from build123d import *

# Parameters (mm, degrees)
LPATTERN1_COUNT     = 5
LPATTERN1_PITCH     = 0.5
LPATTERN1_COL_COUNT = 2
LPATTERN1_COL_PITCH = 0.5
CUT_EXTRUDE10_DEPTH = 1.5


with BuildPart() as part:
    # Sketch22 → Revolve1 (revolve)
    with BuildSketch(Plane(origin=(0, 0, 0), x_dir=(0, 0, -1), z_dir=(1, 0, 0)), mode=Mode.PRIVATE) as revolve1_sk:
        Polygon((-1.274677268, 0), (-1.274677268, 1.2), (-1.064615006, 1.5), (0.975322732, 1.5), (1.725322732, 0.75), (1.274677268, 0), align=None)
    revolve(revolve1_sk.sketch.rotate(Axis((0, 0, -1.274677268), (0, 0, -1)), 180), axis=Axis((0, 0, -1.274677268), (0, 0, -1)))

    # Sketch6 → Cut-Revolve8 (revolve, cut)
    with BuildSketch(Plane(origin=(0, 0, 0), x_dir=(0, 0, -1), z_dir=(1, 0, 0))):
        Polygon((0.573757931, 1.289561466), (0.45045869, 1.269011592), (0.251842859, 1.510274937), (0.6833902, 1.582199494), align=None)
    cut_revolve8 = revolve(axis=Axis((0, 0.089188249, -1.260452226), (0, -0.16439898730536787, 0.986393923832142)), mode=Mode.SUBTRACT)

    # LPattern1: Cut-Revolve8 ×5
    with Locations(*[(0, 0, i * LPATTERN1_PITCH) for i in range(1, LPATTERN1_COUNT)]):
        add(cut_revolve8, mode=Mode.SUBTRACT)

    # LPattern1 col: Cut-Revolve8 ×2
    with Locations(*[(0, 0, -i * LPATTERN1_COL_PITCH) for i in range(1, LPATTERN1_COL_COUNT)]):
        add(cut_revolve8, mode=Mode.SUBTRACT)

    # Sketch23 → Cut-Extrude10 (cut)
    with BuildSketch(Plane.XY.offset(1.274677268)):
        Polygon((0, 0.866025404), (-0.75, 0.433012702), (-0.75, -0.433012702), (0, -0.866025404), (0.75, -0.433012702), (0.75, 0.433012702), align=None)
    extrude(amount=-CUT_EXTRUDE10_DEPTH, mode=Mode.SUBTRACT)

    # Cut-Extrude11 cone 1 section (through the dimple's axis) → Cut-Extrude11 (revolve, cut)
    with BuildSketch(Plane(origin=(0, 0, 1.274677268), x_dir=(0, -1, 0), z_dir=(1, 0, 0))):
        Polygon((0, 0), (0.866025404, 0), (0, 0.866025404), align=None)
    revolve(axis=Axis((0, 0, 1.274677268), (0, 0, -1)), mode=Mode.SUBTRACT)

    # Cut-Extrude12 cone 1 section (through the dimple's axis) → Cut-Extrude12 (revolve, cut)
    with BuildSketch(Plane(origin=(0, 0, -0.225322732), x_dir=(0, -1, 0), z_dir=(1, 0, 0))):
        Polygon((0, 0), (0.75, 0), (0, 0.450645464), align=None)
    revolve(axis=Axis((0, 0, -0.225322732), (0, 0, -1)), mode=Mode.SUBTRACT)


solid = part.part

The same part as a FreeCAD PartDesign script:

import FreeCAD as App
import Part
import Sketcher

V = App.Vector
Q = App.Units.Quantity


def add_polygon(sketch, points):
    """Adds a closed chain of lines whose ends are joined by coincident constraints."""
    first, n = sketch.GeometryCount, len(points)
    for a, b in zip(points, points[1:] + points[:1]):
        sketch.addGeometry(Part.LineSegment(App.Vector(*a, 0), App.Vector(*b, 0)), False)
    for i in range(n):
        sketch.addConstraint(Sketcher.Constraint("Coincident", first + i, 2, first + (i + 1) % n, 1))

doc = App.newDocument("Part")
body = doc.addObject("PartDesign::Body", "Body")

# Sketch on YZ plane
sketch1 = body.newObject("Sketcher::SketchObject", "Sketch")
sketch1.AttachmentSupport = (doc.getObject("YZ_Plane"), [""])
sketch1.MapMode = "FlatFace"
add_polygon(sketch1, [(1.2, 1.27), (0, 1.27), (0, -1.27), (0.75, -1.73), (1.5, -0.98), (1.5, 1.06)])  # lines 0-5
sketch1.addConstraint([
    Sketcher.Constraint("Horizontal", 0),
    Sketcher.Constraint("Vertical", 1),
    Sketcher.Constraint("Vertical", 4),
    Sketcher.Constraint("Symmetric", 0, 2, 1, 2, -1, 1),
    Sketcher.Constraint("Angle", 2, Q("-31 deg")),
    Sketcher.Constraint("Angle", 3, Q("45 deg")),
    Sketcher.Constraint("Angle", 5, Q("145 deg")),
    Sketcher.Constraint("DistanceX", 0, 2, 0, 1, 1.2),
    Sketcher.Constraint("DistanceY", 2, 2, 0, 2, 3.0),
    Sketcher.Constraint("DistanceX", -1, 1, 3, 2, 1.5),
    Sketcher.Constraint("DistanceX", -1, 1, 2, 2, 0.75),
])
revolution = body.newObject("PartDesign::Revolution", "Revolution")
revolution.Profile = sketch1
revolution.ReferenceAxis = (sketch1, ["V_Axis"])
revolution.Angle = 360

# Sketch on YZ plane
sketch2 = body.newObject("Sketcher::SketchObject", "Sketch001")
sketch2.AttachmentSupport = (doc.getObject("YZ_Plane"), [""])
sketch2.MapMode = "FlatFace"
add_polygon(sketch2, [(1.27, -0.45), (1.29, -0.57), (1.58, -0.68), (1.51, -0.25)])  # lines 0-3
sketch2.addGeometry(Part.LineSegment(V(0.04, -0.94, 0), V(-0.04, -0.51, 0)), True)  # axis
sketch2.addConstraint([
    Sketcher.Constraint("Parallel", 0, 2),
    Sketcher.Constraint("Parallel", 2, 4),
    Sketcher.Constraint("Equal", 1, 3),
    Sketcher.Constraint("Equal", 2, 4),
    Sketcher.Constraint("Distance", 0, 0.125),
    Sketcher.Constraint("Distance", 1, 0.3125),
    Sketcher.Constraint("Distance", 2, 0.4375),
    Sketcher.Constraint("DistanceX", -1, 1, 1, 2, 1.582199),
    Sketcher.Constraint("DistanceY", 0, 2, 3, 2, 0.123299),
    Sketcher.Constraint("DistanceX", 4, 1, 0, 2, 1.253599),
    Sketcher.Constraint("DistanceY", 1, 2, -1, 1, 0.68339),
    Sketcher.Constraint("DistanceY", 4, 2, -1, 1, 0.509549),
])
groove = body.newObject("PartDesign::Groove", "Groove")
groove.Profile = sketch2
groove.ReferenceAxis = (sketch2, ["Axis0"])
groove.Angle = 360
doc.recompute()

linearpattern = body.newObject("PartDesign::LinearPattern", "LinearPattern")
linearpattern.Originals = [groove]
linearpattern.Direction = (doc.getObject("Z_Axis"), [""])
linearpattern.Mode = "offset"
linearpattern.Offset = 0.5
linearpattern.Occurrences = 5
body.Tip = linearpattern
doc.recompute()

linearpattern2 = body.newObject("PartDesign::LinearPattern", "LinearPattern001")
linearpattern2.Originals = [groove]
linearpattern2.Direction = (doc.getObject("Z_Axis"), [""])
linearpattern2.Mode = "offset"
linearpattern2.Offset = 0.5
linearpattern2.Occurrences = 2
linearpattern2.Reversed = True
body.Tip = linearpattern2

# Sketch on XY plane
sketch3 = body.newObject("Sketcher::SketchObject", "Sketch002")
sketch3.AttachmentSupport = (doc.getObject("XY_Plane"), [""])
sketch3.MapMode = "FlatFace"
sketch3.AttachmentOffset = App.Placement(V(0, 0, 1.274677), App.Rotation())
add_polygon(sketch3, [(0, 0.9), (-0.8, 0.4), (-0.8, -0.4), (0, -0.9), (0.8, -0.4), (0.8, 0.4)])  # lines 0-5
sketch3.addConstraint([
    Sketcher.Constraint("Vertical", 1),
    Sketcher.Constraint("Vertical", 4),
    Sketcher.Constraint("Symmetric", 0, 2, 3, 2, -1, 1),
    Sketcher.Constraint("Symmetric", 2, 2, 5, 2, -1, 1),
    Sketcher.Constraint("PointOnObject", 2, 2, -2),
    Sketcher.Constraint("Parallel", 2, 5),
    Sketcher.Constraint("Horizontal", 1, 2, 3, 2),
    Sketcher.Constraint("Angle", 0, Q("-150 deg")),
    Sketcher.Constraint("DistanceX", 1, 2, 3, 2, 1.5),
    Sketcher.Constraint("DistanceY", 1, 2, 1, 1, 0.866025),
])
pocket1 = body.newObject("PartDesign::Pocket", "Pocket")
pocket1.Profile = sketch3
pocket1.Length = 1.5

# Sketch on YZ plane
sketch4 = body.newObject("Sketcher::SketchObject", "Sketch003")
sketch4.AttachmentSupport = (doc.getObject("YZ_Plane"), [""])
sketch4.MapMode = "FlatFace"
add_polygon(sketch4, [(0, 1.3), (-0.9, 1.3), (0, 0.4)])  # lines 0-2
sketch4.addConstraint([
    Sketcher.Constraint("Horizontal", 0),
    Sketcher.Constraint("Vertical", 2),
    Sketcher.Constraint("PointOnObject", 1, 2, -2),
    Sketcher.Constraint("Equal", 0, 2),
    Sketcher.Constraint("DistanceX", 0, 2, 0, 1, 0.866025),
    Sketcher.Constraint("DistanceY", -1, 1, 1, 2, 0.408652),
])
groove2 = body.newObject("PartDesign::Groove", "Groove001")
groove2.Profile = sketch4
groove2.ReferenceAxis = (sketch4, ["V_Axis"])
groove2.Angle = 360

# Sketch on YZ plane
sketch5 = body.newObject("Sketcher::SketchObject", "Sketch004")
sketch5.AttachmentSupport = (doc.getObject("YZ_Plane"), [""])
sketch5.MapMode = "FlatFace"
add_polygon(sketch5, [(0, -0.23), (-0.75, -0.23), (0, -0.68)])  # lines 0-2
sketch5.addConstraint([
    Sketcher.Constraint("Horizontal", 0),
    Sketcher.Constraint("Vertical", 2),
    Sketcher.Constraint("PointOnObject", 1, 2, -2),
    Sketcher.Constraint("Angle", 1, Q("-31 deg")),
    Sketcher.Constraint("DistanceX", 0, 2, 0, 1, 0.75),
    Sketcher.Constraint("DistanceY", 1, 2, -1, 1, 0.675968),
])
groove3 = body.newObject("PartDesign::Groove", "Groove002")
groove3.Profile = sketch5
groove3.ReferenceAxis = (sketch5, ["V_Axis"])
groove3.Angle = 360

doc.recompute()
